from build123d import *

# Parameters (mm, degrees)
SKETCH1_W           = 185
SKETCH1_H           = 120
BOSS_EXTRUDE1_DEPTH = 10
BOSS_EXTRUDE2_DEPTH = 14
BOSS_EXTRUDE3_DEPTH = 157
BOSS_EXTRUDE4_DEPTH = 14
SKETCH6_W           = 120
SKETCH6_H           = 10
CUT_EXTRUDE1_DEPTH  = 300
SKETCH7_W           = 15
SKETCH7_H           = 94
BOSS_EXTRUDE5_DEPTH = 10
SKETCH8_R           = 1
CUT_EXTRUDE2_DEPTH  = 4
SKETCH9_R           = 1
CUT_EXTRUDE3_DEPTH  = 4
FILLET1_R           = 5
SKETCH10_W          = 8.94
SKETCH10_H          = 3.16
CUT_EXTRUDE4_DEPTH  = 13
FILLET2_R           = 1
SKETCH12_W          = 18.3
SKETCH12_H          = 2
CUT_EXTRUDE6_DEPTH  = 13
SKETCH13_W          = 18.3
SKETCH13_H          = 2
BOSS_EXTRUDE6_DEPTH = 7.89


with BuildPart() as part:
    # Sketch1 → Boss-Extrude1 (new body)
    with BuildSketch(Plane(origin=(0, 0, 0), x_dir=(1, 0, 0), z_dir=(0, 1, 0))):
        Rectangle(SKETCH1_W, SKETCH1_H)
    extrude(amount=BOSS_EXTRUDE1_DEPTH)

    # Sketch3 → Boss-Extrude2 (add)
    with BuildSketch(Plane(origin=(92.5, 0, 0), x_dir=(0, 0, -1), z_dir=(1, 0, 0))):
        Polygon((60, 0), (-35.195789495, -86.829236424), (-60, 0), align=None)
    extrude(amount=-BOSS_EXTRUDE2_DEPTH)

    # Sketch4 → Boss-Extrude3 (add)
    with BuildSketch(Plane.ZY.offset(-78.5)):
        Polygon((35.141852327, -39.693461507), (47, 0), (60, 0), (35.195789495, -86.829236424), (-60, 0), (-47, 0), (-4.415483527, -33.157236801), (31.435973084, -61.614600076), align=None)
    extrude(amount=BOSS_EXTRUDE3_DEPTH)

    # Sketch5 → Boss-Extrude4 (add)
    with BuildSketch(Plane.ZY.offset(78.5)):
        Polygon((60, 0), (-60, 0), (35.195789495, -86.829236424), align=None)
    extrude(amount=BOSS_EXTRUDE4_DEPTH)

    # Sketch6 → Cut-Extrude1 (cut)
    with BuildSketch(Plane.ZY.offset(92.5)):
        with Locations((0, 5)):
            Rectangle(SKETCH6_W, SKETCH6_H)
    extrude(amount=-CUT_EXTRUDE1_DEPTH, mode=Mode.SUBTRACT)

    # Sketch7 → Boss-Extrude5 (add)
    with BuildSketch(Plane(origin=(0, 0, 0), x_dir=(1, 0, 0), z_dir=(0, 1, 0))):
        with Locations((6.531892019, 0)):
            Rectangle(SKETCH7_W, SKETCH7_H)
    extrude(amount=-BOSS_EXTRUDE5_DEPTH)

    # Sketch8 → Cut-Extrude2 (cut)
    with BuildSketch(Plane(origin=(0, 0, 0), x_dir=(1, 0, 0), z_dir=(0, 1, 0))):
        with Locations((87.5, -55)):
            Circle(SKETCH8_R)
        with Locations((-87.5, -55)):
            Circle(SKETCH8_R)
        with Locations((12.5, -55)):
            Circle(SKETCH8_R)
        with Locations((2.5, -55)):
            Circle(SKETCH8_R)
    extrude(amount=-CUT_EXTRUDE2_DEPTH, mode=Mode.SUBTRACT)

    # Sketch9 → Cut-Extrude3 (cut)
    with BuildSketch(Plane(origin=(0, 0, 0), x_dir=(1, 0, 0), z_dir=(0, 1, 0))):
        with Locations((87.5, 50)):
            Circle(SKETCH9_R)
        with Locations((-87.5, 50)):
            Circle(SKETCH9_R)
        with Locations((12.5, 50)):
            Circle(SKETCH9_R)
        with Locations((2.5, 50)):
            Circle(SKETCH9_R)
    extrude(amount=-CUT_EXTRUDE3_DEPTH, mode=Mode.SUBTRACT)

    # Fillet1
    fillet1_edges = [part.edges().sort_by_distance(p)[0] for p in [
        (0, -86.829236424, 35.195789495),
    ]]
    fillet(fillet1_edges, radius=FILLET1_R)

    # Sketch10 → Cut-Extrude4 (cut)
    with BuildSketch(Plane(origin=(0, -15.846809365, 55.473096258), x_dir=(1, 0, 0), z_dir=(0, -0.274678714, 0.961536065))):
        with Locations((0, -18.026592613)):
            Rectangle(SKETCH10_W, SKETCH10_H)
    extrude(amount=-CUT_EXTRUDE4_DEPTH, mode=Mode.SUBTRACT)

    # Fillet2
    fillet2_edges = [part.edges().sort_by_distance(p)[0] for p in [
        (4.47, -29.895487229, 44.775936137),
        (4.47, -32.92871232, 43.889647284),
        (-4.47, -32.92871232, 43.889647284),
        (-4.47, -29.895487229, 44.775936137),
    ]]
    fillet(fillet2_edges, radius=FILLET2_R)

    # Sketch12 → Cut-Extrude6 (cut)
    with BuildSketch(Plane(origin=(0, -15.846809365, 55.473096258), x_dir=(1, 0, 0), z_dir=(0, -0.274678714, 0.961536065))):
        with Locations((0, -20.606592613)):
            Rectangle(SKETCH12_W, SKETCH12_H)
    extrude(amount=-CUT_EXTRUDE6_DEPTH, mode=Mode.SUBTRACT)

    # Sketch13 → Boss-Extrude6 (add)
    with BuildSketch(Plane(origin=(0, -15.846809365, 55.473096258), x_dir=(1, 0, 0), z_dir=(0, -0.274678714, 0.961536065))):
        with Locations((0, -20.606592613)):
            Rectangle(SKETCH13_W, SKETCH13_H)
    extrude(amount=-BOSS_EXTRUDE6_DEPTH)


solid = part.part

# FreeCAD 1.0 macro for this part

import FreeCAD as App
import Part
import Sketcher
from FreeCAD import Vector


def edges_at(feature, points):
    """Names of the edges that pass closest to the given points."""
    edges = feature.Shape.Edges
    near = lambda p: min(range(len(edges)), key=lambda i: edges[i].distToShape(Part.Vertex(*p))[0])
    return sorted({f"Edge{near(p) + 1}" for p in points})


def add_polygon(sketch, points):
    """Adds a closed chain of lines whose ends are joined by coincident constraints."""
    first, n = sketch.GeometryCount, len(points)
    for a, b in zip(points, points[1:] + points[:1]):
        sketch.addGeometry(Part.LineSegment(App.Vector(*a, 0), App.Vector(*b, 0)), False)
    for i in range(n):
        sketch.addConstraint(Sketcher.Constraint("Coincident", first + i, 2, first + (i + 1) % n, 1))

doc = App.newDocument("Part")
params = doc.addObject("Spreadsheet::Sheet", "Params")
for row, (alias, value) in enumerate([
    ("sketch1_width", "185 mm"),
    ("sketch1_height", "120 mm"),
    ("pad1_length", "10 mm"),
    ("sketch2_height", "120 mm"),
    ("pad2_length", "14 mm"),
    ("sketch3_height", "13 mm"),
    ("pad3_length", "157 mm"),
    ("sketch4_height", "120 mm"),
    ("pad4_length", "14 mm"),
    ("sketch5_width", "10 mm"),
    ("sketch5_height", "120 mm"),
    ("pocket1_length", "300 mm"),
    ("sketch6_width", "15 mm"),
    ("sketch6_height", "94 mm"),
    ("pad5_length", "10 mm"),
    ("sketch7_diameter", "2 mm"),
    ("pocket2_length", "4 mm"),
    ("sketch8_diameter", "2 mm"),
    ("pocket3_length", "4 mm"),
    ("fillet_radius", "5 mm"),
    ("sketch9_width", "8.94 mm"),
    ("sketch9_height", "3.16 mm"),
    ("pocket4_length", "13 mm"),
    ("fillet2_radius", "1 mm"),
    ("sketch10_height", "2 mm"),
    ("sketch10_width", "18.3 mm"),
    ("pocket5_length", "13 mm"),
    ("sketch11_height", "2 mm"),
    ("sketch11_width", "18.3 mm"),
    ("pad6_length", "7.89 mm"),
], start=1):
    params.set(f"A{row}", alias)
    params.set(f"B{row}", "=" + value)
    params.setAlias(f"B{row}", alias)

body = doc.addObject("PartDesign::Body", "Body")

# Sketch on XZ plane
sketch1 = body.newObject("Sketcher::SketchObject", "Sketch")
sketch1.AttachmentSupport = (doc.getObject("XZ_Plane"), [""])
sketch1.MapMode = "FlatFace"
add_polygon(sketch1, [(-92, -60), (-92, 60), (92, 60), (92, -60)])  # lines 0-3
sketch1.addConstraint(Sketcher.Constraint("Vertical", 0))
sketch1.addConstraint(Sketcher.Constraint("Horizontal", 1))
sketch1.addConstraint(Sketcher.Constraint("Vertical", 2))
sketch1.addConstraint(Sketcher.Constraint("Horizontal", 3))
sketch1.addConstraint(Sketcher.Constraint("Symmetric", 0, 2, 2, 2, -1, 1))
sketch1.addConstraint(Sketcher.Constraint("DistanceX", 1, 1, 1, 2, 185.0))
sketch1.addConstraint(Sketcher.Constraint("DistanceY", 0, 1, 0, 2, 120.0))
sketch1.setExpression("Constraints[9]", "Params.sketch1_width")
sketch1.setExpression("Constraints[10]", "Params.sketch1_height")
pad1 = body.newObject("PartDesign::Pad", "Pad")
pad1.Profile = sketch1
pad1.setExpression("Length", "Params.pad1_length")
pad1.Reversed = True

# Sketch on YZ plane
sketch2 = body.newObject("Sketcher::SketchObject", "Sketch001")
sketch2.AttachmentSupport = (doc.getObject("YZ_Plane"), [""])
sketch2.MapMode = "FlatFace"
sketch2.AttachmentOffset = App.Placement(Vector(0, 0, 92.5), App.Rotation())
add_polygon(sketch2, [(-87, 35), (0, -60), (0, 60)])  # lines 0-2
sketch2.addConstraint(Sketcher.Constraint("Vertical", 1))
sketch2.addConstraint(Sketcher.Constraint("Symmetric", 0, 2, 1, 2, -1, 1))
sketch2.addConstraint(Sketcher.Constraint("DistanceY", 1, 1, 1, 2, 120.0))
sketch2.addConstraint(Sketcher.Constraint("Distance", 0, 128.84702))
sketch2.addConstraint(Sketcher.Constraint("Distance", 2, 90.302631))
sketch2.setExpression("Constraints[5]", "Params.sketch2_height")
pad2 = body.newObject("PartDesign::Pad", "Pad001")
pad2.Profile = sketch2
pad2.setExpression("Length", "Params.pad2_length")
pad2.Reversed = True

# Sketch on YZ plane
sketch3 = body.newObject("Sketcher::SketchObject", "Sketch002")
sketch3.AttachmentSupport = (doc.getObject("YZ_Plane"), [""])
sketch3.MapMode = "FlatFace"
sketch3.AttachmentOffset = App.Placement(Vector(0, 0, 78.5), App.Rotation())
add_polygon(sketch3, [(0, 47), (-40, 35), (-62, 31), (-33, -4), (0, -47), (0, -60), (-87, 35), (0, 60)])  # lines 0-7
sketch3.addConstraint(Sketcher.Constraint("Vertical", 4))
sketch3.addConstraint(Sketcher.Constraint("Vertical", 7))
sketch3.addConstraint(Sketcher.Constraint("Symmetric", 4, 2, 6, 2, -1, 1))
sketch3.addConstraint(Sketcher.Constraint("Symmetric", 3, 2, 7, 2, -1))
sketch3.addConstraint(Sketcher.Constraint("DistanceY", 4, 2, 4, 1, 13.0))
sketch3.addConstraint(Sketcher.Constraint("DistanceY", 3, 2, -1, 1, 47.0))
sketch3.addConstraint(Sketcher.Constraint("DistanceX", 5, 2, 2, 2, 53.672))
sketch3.addConstraint(Sketcher.Constraint("DistanceX", 1, 2, -1, 1, 61.6146))
sketch3.addConstraint(Sketcher.Constraint("Distance", 1, 22.232181))
sketch3.addConstraint(Sketcher.Constraint("Distance", 2, 45.772792))
sketch3.addConstraint(Sketcher.Constraint("Distance", 5, 128.84702))
sketch3.addConstraint(Sketcher.Constraint("Distance", 6, 90.302631))
sketch3.addConstraint(Sketcher.Constraint("DistanceX", 0, 2, -1, 1, 39.693462))
sketch3.addConstraint(Sketcher.Constraint("Distance", 0, 41.426882))
sketch3.setExpression("Constraints[12]", "Params.sketch3_height")
pad3 = body.newObject("PartDesign::Pad", "Pad002")
pad3.Profile = sketch3
pad3.setExpression("Length", "Params.pad3_length")
pad3.Reversed = True

# Sketch on YZ plane
sketch4 = body.newObject("Sketcher::SketchObject", "Sketch003")
sketch4.AttachmentSupport = (doc.getObject("YZ_Plane"), [""])
sketch4.MapMode = "FlatFace"
sketch4.AttachmentOffset = App.Placement(Vector(0, 0, -78.5), App.Rotation())
add_polygon(sketch4, [(0, 60), (0, -60), (-87, 35)])  # lines 0-2
sketch4.addConstraint(Sketcher.Constraint("Vertical", 0))
sketch4.addConstraint(Sketcher.Constraint("Symmetric", 0, 2, 2, 2, -1, 1))
sketch4.addConstraint(Sketcher.Constraint("DistanceY", 0, 2, 0, 1, 120.0))
sketch4.addConstraint(Sketcher.Constraint("Distance", 1, 128.84702))
sketch4.addConstraint(Sketcher.Constraint("Distance", 2, 90.302631))
sketch4.setExpression("Constraints[5]", "Params.sketch4_height")
pad4 = body.newObject("PartDesign::Pad", "Pad003")
pad4.Profile = sketch4
pad4.setExpression("Length", "Params.pad4_length")
pad4.Reversed = True

# Sketch on YZ plane
sketch5 = body.newObject("Sketcher::SketchObject", "Sketch004")
sketch5.AttachmentSupport = (doc.getObject("YZ_Plane"), [""])
sketch5.MapMode = "FlatFace"
sketch5.AttachmentOffset = App.Placement(Vector(0, 0, -92.5), App.Rotation())
add_polygon(sketch5, [(10, -60), (0, -60), (0, 60), (10, 60)])  # lines 0-3
sketch5.addConstraint(Sketcher.Constraint("Horizontal", 0))
sketch5.addConstraint(Sketcher.Constraint("Vertical", 1))
sketch5.addConstraint(Sketcher.Constraint("Horizontal", 2))
sketch5.addConstraint(Sketcher.Constraint("Vertical", 3))
sketch5.addConstraint(Sketcher.Constraint("Symmetric", 0, 2, 1, 2, -1, 1))
sketch5.addConstraint(Sketcher.Constraint("DistanceX", 0, 2, 0, 1, 10.0))
sketch5.addConstraint(Sketcher.Constraint("DistanceY", 1, 1, 1, 2, 120.0))
sketch5.setExpression("Constraints[9]", "Params.sketch5_width")
sketch5.setExpression("Constraints[10]", "Params.sketch5_height")
pocket1 = body.newObject("PartDesign::Pocket", "Pocket")
pocket1.Profile = sketch5
pocket1.setExpression("Length", "Params.pocket1_length")
pocket1.Reversed = True

# Sketch on XZ plane
sketch6 = body.newObject("Sketcher::SketchObject", "Sketch005")
sketch6.AttachmentSupport = (doc.getObject("XZ_Plane"), [""])
sketch6.MapMode = "FlatFace"
add_polygon(sketch6, [(-1, -47), (-1, 47), (14, 47), (14, -47)])  # lines 0-3
sketch6.addConstraint(Sketcher.Constraint("Vertical", 0))
sketch6.addConstraint(Sketcher.Constraint("Horizontal", 1))
sketch6.addConstraint(Sketcher.Constraint("Vertical", 2))
sketch6.addConstraint(Sketcher.Constraint("Horizontal", 3))
sketch6.addConstraint(Sketcher.Constraint("DistanceX", 1, 1, 1, 2, 15.0))
sketch6.addConstraint(Sketcher.Constraint("DistanceY", 0, 1, 0, 2, 94.0))
sketch6.addConstraint(Sketcher.Constraint("DistanceY", -1, 1, 0, 2, 47.0))
sketch6.addConstraint(Sketcher.Constraint("DistanceX", 0, 2, -1, 1, 0.968108))
sketch6.setExpression("Constraints[8]", "Params.sketch6_width")
sketch6.setExpression("Constraints[9]", "Params.sketch6_height")
pad5 = body.newObject("PartDesign::Pad", "Pad004")
pad5.Profile = sketch6
pad5.setExpression("Length", "Params.pad5_length")

# Sketch on XZ plane
sketch7 = body.newObject("Sketcher::SketchObject", "Sketch006")
sketch7.AttachmentSupport = (doc.getObject("XZ_Plane"), [""])
sketch7.MapMode = "FlatFace"
sketch7.addGeometry(Part.Circle(Vector(87.5, 55, 0), Vector(0, 0, 1), 1), False)
sketch7.addGeometry(Part.Circle(Vector(-87.5, 55, 0), Vector(0, 0, 1), 1), False)
sketch7.addGeometry(Part.Circle(Vector(12.5, 55, 0), Vector(0, 0, 1), 1), False)
sketch7.addGeometry(Part.Circle(Vector(2.5, 55, 0), Vector(0, 0, 1), 1), False)
sketch7.addConstraint(Sketcher.Constraint("Equal", 0, 1))
sketch7.addConstraint(Sketcher.Constraint("Equal", 1, 2))
sketch7.addConstraint(Sketcher.Constraint("Equal", 2, 3))
sketch7.addConstraint(Sketcher.Constraint("Symmetric", 0, 3, 1, 3, -2))
sketch7.addConstraint(Sketcher.Constraint("Horizontal", 1, 3, 2, 3))
sketch7.addConstraint(Sketcher.Constraint("Horizontal", 2, 3, 3, 3))
sketch7.addConstraint(Sketcher.Constraint("Diameter", 0, 2.0))
sketch7.addConstraint(Sketcher.Constraint("DistanceY", -1, 1, 0, 3, 55.0))
sketch7.addConstraint(Sketcher.Constraint("DistanceX", 1, 3, 0, 3, 175.0))
sketch7.addConstraint(Sketcher.Constraint("DistanceX", 2, 3, 0, 3, 75.0))
sketch7.addConstraint(Sketcher.Constraint("DistanceX", 3, 3, 2, 3, 10.0))
sketch7.setExpression("Constraints[6]", "Params.sketch7_diameter")
pocket2 = body.newObject("PartDesign::Pocket", "Pocket001")
pocket2.Profile = sketch7
pocket2.setExpression("Length", "Params.pocket2_length")
pocket2.Reversed = True

# Sketch on XZ plane
sketch8 = body.newObject("Sketcher::SketchObject", "Sketch007")
sketch8.AttachmentSupport = (doc.getObject("XZ_Plane"), [""])
sketch8.MapMode = "FlatFace"
sketch8.addGeometry(Part.Circle(Vector(87.5, -50, 0), Vector(0, 0, 1), 1), False)
sketch8.addGeometry(Part.Circle(Vector(-87.5, -50, 0), Vector(0, 0, 1), 1), False)
sketch8.addGeometry(Part.Circle(Vector(12.5, -50, 0), Vector(0, 0, 1), 1), False)
sketch8.addGeometry(Part.Circle(Vector(2.5, -50, 0), Vector(0, 0, 1), 1), False)
sketch8.addConstraint(Sketcher.Constraint("Equal", 0, 1))
sketch8.addConstraint(Sketcher.Constraint("Equal", 1, 2))
sketch8.addConstraint(Sketcher.Constraint("Equal", 2, 3))
sketch8.addConstraint(Sketcher.Constraint("Symmetric", 0, 3, 1, 3, -2))
sketch8.addConstraint(Sketcher.Constraint("Horizontal", 1, 3, 2, 3))
sketch8.addConstraint(Sketcher.Constraint("Horizontal", 2, 3, 3, 3))
sketch8.addConstraint(Sketcher.Constraint("Diameter", 0, 2.0))
sketch8.addConstraint(Sketcher.Constraint("DistanceY", 0, 3, -1, 1, 50.0))
sketch8.addConstraint(Sketcher.Constraint("DistanceX", 1, 3, 0, 3, 175.0))
sketch8.addConstraint(Sketcher.Constraint("DistanceX", 2, 3, 0, 3, 75.0))
sketch8.addConstraint(Sketcher.Constraint("DistanceX", 3, 3, 2, 3, 10.0))
sketch8.setExpression("Constraints[6]", "Params.sketch8_diameter")
pocket3 = body.newObject("PartDesign::Pocket", "Pocket002")
pocket3.Profile = sketch8
pocket3.setExpression("Length", "Params.pocket3_length")
pocket3.Reversed = True
doc.recompute()

fillet = body.newObject("PartDesign::Fillet", "Fillet")
fillet.Base = (pocket3, edges_at(pocket3, [(0, -86.829, 35.196)]))
fillet.setExpression("Radius", "Params.fillet_radius")

# Sketch on an angled plane
sketch9 = body.newObject("Sketcher::SketchObject", "Sketch008")
sketch9.Placement = App.Placement(Vector(0, -15.846809, 55.473096), App.Rotation(Vector(1, 0, 0), Vector(0, 0.961536065, 0.274678714), Vector(0, -0.274678714, 0.961536065), "ZXY"))
add_polygon(sketch9, [(-4.5, -16.4), (-4.5, -19.6), (4.5, -19.6), (4.5, -16.4)])  # lines 0-3
sketch9.addConstraint(Sketcher.Constraint("Vertical", 0))
sketch9.addConstraint(Sketcher.Constraint("Horizontal", 1))
sketch9.addConstraint(Sketcher.Constraint("Vertical", 2))
sketch9.addConstraint(Sketcher.Constraint("Horizontal", 3))
sketch9.addConstraint(Sketcher.Constraint("DistanceX", 1, 1, 1, 2, 8.94))
sketch9.addConstraint(Sketcher.Constraint("DistanceY", 0, 2, 0, 1, 3.16))
sketch9.addConstraint(Sketcher.Constraint("DistanceX", 0, 2, -1, 1, 4.47))
sketch9.addConstraint(Sketcher.Constraint("DistanceY", 0, 2, -1, 1, 19.606593))
sketch9.setExpression("Constraints[8]", "Params.sketch9_width")
sketch9.setExpression("Constraints[9]", "Params.sketch9_height")
pocket4 = body.newObject("PartDesign::Pocket", "Pocket003")
pocket4.Profile = sketch9
pocket4.setExpression("Length", "Params.pocket4_length")
doc.recompute()

fillet2 = body.newObject("PartDesign::Fillet", "Fillet001")
fillet2.Base = (pocket4, edges_at(pocket4, [
    (4.47, -29.895, 44.776),
    (4.47, -32.929, 43.89),
    (-4.47, -32.929, 43.89),
    (-4.47, -29.895, 44.776),
]))
fillet2.setExpression("Radius", "Params.fillet2_radius")

# Sketch on an angled plane
sketch10 = body.newObject("Sketcher::SketchObject", "Sketch009")
sketch10.Placement = App.Placement(Vector(0, -15.846809, 55.473096), App.Rotation(Vector(1, 0, 0), Vector(0, 0.961536065, 0.274678714), Vector(0, -0.274678714, 0.961536065), "ZXY"))
add_polygon(sketch10, [(-9.2, -19.6), (-9.2, -21.6), (9.2, -21.6), (9.2, -19.6)])  # lines 0-3
sketch10.addConstraint(Sketcher.Constraint("Vertical", 0))
sketch10.addConstraint(Sketcher.Constraint("Horizontal", 1))
sketch10.addConstraint(Sketcher.Constraint("Vertical", 2))
sketch10.addConstraint(Sketcher.Constraint("Horizontal", 3))
sketch10.addConstraint(Sketcher.Constraint("DistanceY", 0, 2, 0, 1, 2.0))
sketch10.addConstraint(Sketcher.Constraint("DistanceX", 1, 1, 1, 2, 18.3))
sketch10.addConstraint(Sketcher.Constraint("DistanceX", 0, 2, -1, 1, 9.15))
sketch10.addConstraint(Sketcher.Constraint("DistanceY", 0, 2, -1, 1, 21.606593))
sketch10.setExpression("Constraints[8]", "Params.sketch10_height")
sketch10.setExpression("Constraints[9]", "Params.sketch10_width")
pocket5 = body.newObject("PartDesign::Pocket", "Pocket004")
pocket5.Profile = sketch10
pocket5.setExpression("Length", "Params.pocket5_length")

# Sketch on an angled plane
sketch11 = body.newObject("Sketcher::SketchObject", "Sketch010")
sketch11.Placement = App.Placement(Vector(0, -15.846809, 55.473096), App.Rotation(Vector(1, 0, 0), Vector(0, 0.961536065, 0.274678714), Vector(0, -0.274678714, 0.961536065), "ZXY"))
add_polygon(sketch11, [(-9.2, -19.6), (-9.2, -21.6), (9.2, -21.6), (9.2, -19.6)])  # lines 0-3
sketch11.addConstraint(Sketcher.Constraint("Vertical", 0))
sketch11.addConstraint(Sketcher.Constraint("Horizontal", 1))
sketch11.addConstraint(Sketcher.Constraint("Vertical", 2))
sketch11.addConstraint(Sketcher.Constraint("Horizontal", 3))
sketch11.addConstraint(Sketcher.Constraint("DistanceY", 0, 2, 0, 1, 2.0))
sketch11.addConstraint(Sketcher.Constraint("DistanceX", 1, 1, 1, 2, 18.3))
sketch11.addConstraint(Sketcher.Constraint("DistanceX", 0, 2, -1, 1, 9.15))
sketch11.addConstraint(Sketcher.Constraint("DistanceY", 0, 2, -1, 1, 21.606593))
sketch11.setExpression("Constraints[8]", "Params.sketch11_height")
sketch11.setExpression("Constraints[9]", "Params.sketch11_width")
pad6 = body.newObject("PartDesign::Pad", "Pad005")
pad6.Profile = sketch11
pad6.setExpression("Length", "Params.pad6_length")
pad6.Reversed = True

doc.recompute()
